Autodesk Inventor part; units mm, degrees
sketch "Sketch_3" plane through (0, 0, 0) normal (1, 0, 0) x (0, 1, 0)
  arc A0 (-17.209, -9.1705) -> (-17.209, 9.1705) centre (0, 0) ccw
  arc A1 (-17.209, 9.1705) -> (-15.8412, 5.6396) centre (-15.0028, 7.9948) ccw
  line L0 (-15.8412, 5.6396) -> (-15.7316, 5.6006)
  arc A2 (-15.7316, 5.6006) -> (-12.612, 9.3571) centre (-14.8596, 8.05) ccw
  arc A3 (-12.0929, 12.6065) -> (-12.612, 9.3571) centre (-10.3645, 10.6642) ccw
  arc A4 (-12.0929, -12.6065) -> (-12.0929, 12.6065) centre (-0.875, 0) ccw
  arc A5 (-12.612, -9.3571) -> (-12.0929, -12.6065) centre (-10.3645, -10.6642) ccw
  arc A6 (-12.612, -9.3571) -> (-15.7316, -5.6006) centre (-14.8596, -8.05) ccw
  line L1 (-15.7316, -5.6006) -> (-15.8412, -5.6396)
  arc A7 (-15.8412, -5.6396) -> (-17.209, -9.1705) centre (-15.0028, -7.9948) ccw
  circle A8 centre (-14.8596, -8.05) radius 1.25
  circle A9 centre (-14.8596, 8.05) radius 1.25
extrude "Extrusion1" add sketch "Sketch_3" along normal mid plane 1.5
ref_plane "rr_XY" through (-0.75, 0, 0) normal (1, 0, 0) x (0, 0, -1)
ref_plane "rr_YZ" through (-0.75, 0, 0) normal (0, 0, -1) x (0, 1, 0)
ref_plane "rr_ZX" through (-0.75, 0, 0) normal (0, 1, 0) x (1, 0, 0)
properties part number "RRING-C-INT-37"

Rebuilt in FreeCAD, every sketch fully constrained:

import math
import FreeCAD as App
import Part
import Sketcher
Q = App.Units.Quantity

doc = App.newDocument("Part")
body = doc.addObject("PartDesign::Body", "Body")

sketch1 = body.newObject("Sketcher::SketchObject", "Sketch")
sketch1.AttachmentSupport = (doc.getObject("YZ_Plane"), [""])
sketch1.MapMode = "FlatFace"
sketch1.addGeometry([
    Part.ArcOfCircle(Part.Circle(App.Vector(-15, -7.99, 0), App.Vector(0, 0, 1), 2.5), math.radians(110), math.radians(208)),
    Part.ArcOfCircle(Part.Circle(App.Vector(0, 0, 0), App.Vector(0, 0, 1), 19.5), math.radians(-152), math.radians(152)),
    Part.ArcOfCircle(Part.Circle(App.Vector(-15, 7.99, 0), App.Vector(0, 0, 1), 2.5), math.radians(152), math.radians(250)),
    Part.LineSegment(App.Vector(-15.84, 5.64, 0), App.Vector(-15.73, 5.6, 0)),
    Part.ArcOfCircle(Part.Circle(App.Vector(-14.86, 8.05, 0), App.Vector(0, 0, 1), 2.6), math.radians(-110), math.radians(30)),
    Part.ArcOfCircle(Part.Circle(App.Vector(-10.36, 10.66, 0), App.Vector(0, 0, 1), 2.6), math.radians(132), math.radians(210)),
    Part.ArcOfCircle(Part.Circle(App.Vector(-0.88, 0, 0), App.Vector(0, 0, 1), 16.87), math.radians(-132), math.radians(132)),
    Part.ArcOfCircle(Part.Circle(App.Vector(-10.36, -10.66, 0), App.Vector(0, 0, 1), 2.6), math.radians(150), math.radians(228)),
    Part.ArcOfCircle(Part.Circle(App.Vector(-14.86, -8.05, 0), App.Vector(0, 0, 1), 2.6), math.radians(-30), math.radians(110)),
    Part.LineSegment(App.Vector(-15.73, -5.6, 0), App.Vector(-15.84, -5.64, 0)),
    Part.Circle(App.Vector(-14.86, -8.05, 0), App.Vector(0, 0, 1), 1.25),
    Part.Circle(App.Vector(-14.86, 8.05, 0), App.Vector(0, 0, 1), 1.25),
], False)
sketch1.addConstraint([
    Sketcher.Constraint("Tangent", 0, 2, 1, 1),
    Sketcher.Constraint("Tangent", 1, 2, 2, 1),
    Sketcher.Constraint("Tangent", 2, 2, 3, 1),
    Sketcher.Constraint("Tangent", 3, 2, 4, 1),
    Sketcher.Constraint("Tangent", 4, 2, 5, 2),
    Sketcher.Constraint("Tangent", 5, 1, 6, 2),
    Sketcher.Constraint("Tangent", 6, 1, 7, 2),
    Sketcher.Constraint("Tangent", 7, 1, 8, 1),
    Sketcher.Constraint("Tangent", 8, 2, 9, 1),
    Sketcher.Constraint("Tangent", 9, 2, 0, 1),
    Sketcher.Constraint("Coincident", 1, 3, -1, 1),
    Sketcher.Constraint("Coincident", 10, 3, 8, 3),
    Sketcher.Constraint("Coincident", 11, 3, 4, 3),
    Sketcher.Constraint("Equal", 0, 2),
    Sketcher.Constraint("Equal", 4, 5),
    Sketcher.Constraint("Equal", 5, 7),
    Sketcher.Constraint("Equal", 7, 8),
    Sketcher.Constraint("Equal", 10, 11),
    Sketcher.Constraint("Symmetric", 5, 3, 7, 3, -1),
    Sketcher.Constraint("Symmetric", 3, 2, 8, 2, -1),
    Sketcher.Constraint("Diameter", 10, Q("2.5 mm")),
    Sketcher.Constraint("Radius", 0, Q("2.5 mm")),
    Sketcher.Constraint("Radius", 1, Q("19.5 mm")),
    Sketcher.Constraint("Radius", 4, Q("2.6 mm")),
    Sketcher.Constraint("Radius", 6, Q("16.875 mm")),
    Sketcher.Constraint("DistanceY", 8, 3, 4, 3, Q("16.1 mm")),
    Sketcher.Constraint("DistanceY", 3, 2, 1, 2, Q("3.57 mm")),
    Sketcher.Constraint("DistanceX", 2, 3, 5, 1, Q("2.91 mm")),
    Sketcher.Constraint("DistanceX", 6, 3, -1, 1, Q("0.875 mm")),
])
pad1 = body.newObject("PartDesign::Pad", "Pad")
pad1.Profile = sketch1
pad1.Length = 1.5
pad1.Midplane = True

doc.recompute()
